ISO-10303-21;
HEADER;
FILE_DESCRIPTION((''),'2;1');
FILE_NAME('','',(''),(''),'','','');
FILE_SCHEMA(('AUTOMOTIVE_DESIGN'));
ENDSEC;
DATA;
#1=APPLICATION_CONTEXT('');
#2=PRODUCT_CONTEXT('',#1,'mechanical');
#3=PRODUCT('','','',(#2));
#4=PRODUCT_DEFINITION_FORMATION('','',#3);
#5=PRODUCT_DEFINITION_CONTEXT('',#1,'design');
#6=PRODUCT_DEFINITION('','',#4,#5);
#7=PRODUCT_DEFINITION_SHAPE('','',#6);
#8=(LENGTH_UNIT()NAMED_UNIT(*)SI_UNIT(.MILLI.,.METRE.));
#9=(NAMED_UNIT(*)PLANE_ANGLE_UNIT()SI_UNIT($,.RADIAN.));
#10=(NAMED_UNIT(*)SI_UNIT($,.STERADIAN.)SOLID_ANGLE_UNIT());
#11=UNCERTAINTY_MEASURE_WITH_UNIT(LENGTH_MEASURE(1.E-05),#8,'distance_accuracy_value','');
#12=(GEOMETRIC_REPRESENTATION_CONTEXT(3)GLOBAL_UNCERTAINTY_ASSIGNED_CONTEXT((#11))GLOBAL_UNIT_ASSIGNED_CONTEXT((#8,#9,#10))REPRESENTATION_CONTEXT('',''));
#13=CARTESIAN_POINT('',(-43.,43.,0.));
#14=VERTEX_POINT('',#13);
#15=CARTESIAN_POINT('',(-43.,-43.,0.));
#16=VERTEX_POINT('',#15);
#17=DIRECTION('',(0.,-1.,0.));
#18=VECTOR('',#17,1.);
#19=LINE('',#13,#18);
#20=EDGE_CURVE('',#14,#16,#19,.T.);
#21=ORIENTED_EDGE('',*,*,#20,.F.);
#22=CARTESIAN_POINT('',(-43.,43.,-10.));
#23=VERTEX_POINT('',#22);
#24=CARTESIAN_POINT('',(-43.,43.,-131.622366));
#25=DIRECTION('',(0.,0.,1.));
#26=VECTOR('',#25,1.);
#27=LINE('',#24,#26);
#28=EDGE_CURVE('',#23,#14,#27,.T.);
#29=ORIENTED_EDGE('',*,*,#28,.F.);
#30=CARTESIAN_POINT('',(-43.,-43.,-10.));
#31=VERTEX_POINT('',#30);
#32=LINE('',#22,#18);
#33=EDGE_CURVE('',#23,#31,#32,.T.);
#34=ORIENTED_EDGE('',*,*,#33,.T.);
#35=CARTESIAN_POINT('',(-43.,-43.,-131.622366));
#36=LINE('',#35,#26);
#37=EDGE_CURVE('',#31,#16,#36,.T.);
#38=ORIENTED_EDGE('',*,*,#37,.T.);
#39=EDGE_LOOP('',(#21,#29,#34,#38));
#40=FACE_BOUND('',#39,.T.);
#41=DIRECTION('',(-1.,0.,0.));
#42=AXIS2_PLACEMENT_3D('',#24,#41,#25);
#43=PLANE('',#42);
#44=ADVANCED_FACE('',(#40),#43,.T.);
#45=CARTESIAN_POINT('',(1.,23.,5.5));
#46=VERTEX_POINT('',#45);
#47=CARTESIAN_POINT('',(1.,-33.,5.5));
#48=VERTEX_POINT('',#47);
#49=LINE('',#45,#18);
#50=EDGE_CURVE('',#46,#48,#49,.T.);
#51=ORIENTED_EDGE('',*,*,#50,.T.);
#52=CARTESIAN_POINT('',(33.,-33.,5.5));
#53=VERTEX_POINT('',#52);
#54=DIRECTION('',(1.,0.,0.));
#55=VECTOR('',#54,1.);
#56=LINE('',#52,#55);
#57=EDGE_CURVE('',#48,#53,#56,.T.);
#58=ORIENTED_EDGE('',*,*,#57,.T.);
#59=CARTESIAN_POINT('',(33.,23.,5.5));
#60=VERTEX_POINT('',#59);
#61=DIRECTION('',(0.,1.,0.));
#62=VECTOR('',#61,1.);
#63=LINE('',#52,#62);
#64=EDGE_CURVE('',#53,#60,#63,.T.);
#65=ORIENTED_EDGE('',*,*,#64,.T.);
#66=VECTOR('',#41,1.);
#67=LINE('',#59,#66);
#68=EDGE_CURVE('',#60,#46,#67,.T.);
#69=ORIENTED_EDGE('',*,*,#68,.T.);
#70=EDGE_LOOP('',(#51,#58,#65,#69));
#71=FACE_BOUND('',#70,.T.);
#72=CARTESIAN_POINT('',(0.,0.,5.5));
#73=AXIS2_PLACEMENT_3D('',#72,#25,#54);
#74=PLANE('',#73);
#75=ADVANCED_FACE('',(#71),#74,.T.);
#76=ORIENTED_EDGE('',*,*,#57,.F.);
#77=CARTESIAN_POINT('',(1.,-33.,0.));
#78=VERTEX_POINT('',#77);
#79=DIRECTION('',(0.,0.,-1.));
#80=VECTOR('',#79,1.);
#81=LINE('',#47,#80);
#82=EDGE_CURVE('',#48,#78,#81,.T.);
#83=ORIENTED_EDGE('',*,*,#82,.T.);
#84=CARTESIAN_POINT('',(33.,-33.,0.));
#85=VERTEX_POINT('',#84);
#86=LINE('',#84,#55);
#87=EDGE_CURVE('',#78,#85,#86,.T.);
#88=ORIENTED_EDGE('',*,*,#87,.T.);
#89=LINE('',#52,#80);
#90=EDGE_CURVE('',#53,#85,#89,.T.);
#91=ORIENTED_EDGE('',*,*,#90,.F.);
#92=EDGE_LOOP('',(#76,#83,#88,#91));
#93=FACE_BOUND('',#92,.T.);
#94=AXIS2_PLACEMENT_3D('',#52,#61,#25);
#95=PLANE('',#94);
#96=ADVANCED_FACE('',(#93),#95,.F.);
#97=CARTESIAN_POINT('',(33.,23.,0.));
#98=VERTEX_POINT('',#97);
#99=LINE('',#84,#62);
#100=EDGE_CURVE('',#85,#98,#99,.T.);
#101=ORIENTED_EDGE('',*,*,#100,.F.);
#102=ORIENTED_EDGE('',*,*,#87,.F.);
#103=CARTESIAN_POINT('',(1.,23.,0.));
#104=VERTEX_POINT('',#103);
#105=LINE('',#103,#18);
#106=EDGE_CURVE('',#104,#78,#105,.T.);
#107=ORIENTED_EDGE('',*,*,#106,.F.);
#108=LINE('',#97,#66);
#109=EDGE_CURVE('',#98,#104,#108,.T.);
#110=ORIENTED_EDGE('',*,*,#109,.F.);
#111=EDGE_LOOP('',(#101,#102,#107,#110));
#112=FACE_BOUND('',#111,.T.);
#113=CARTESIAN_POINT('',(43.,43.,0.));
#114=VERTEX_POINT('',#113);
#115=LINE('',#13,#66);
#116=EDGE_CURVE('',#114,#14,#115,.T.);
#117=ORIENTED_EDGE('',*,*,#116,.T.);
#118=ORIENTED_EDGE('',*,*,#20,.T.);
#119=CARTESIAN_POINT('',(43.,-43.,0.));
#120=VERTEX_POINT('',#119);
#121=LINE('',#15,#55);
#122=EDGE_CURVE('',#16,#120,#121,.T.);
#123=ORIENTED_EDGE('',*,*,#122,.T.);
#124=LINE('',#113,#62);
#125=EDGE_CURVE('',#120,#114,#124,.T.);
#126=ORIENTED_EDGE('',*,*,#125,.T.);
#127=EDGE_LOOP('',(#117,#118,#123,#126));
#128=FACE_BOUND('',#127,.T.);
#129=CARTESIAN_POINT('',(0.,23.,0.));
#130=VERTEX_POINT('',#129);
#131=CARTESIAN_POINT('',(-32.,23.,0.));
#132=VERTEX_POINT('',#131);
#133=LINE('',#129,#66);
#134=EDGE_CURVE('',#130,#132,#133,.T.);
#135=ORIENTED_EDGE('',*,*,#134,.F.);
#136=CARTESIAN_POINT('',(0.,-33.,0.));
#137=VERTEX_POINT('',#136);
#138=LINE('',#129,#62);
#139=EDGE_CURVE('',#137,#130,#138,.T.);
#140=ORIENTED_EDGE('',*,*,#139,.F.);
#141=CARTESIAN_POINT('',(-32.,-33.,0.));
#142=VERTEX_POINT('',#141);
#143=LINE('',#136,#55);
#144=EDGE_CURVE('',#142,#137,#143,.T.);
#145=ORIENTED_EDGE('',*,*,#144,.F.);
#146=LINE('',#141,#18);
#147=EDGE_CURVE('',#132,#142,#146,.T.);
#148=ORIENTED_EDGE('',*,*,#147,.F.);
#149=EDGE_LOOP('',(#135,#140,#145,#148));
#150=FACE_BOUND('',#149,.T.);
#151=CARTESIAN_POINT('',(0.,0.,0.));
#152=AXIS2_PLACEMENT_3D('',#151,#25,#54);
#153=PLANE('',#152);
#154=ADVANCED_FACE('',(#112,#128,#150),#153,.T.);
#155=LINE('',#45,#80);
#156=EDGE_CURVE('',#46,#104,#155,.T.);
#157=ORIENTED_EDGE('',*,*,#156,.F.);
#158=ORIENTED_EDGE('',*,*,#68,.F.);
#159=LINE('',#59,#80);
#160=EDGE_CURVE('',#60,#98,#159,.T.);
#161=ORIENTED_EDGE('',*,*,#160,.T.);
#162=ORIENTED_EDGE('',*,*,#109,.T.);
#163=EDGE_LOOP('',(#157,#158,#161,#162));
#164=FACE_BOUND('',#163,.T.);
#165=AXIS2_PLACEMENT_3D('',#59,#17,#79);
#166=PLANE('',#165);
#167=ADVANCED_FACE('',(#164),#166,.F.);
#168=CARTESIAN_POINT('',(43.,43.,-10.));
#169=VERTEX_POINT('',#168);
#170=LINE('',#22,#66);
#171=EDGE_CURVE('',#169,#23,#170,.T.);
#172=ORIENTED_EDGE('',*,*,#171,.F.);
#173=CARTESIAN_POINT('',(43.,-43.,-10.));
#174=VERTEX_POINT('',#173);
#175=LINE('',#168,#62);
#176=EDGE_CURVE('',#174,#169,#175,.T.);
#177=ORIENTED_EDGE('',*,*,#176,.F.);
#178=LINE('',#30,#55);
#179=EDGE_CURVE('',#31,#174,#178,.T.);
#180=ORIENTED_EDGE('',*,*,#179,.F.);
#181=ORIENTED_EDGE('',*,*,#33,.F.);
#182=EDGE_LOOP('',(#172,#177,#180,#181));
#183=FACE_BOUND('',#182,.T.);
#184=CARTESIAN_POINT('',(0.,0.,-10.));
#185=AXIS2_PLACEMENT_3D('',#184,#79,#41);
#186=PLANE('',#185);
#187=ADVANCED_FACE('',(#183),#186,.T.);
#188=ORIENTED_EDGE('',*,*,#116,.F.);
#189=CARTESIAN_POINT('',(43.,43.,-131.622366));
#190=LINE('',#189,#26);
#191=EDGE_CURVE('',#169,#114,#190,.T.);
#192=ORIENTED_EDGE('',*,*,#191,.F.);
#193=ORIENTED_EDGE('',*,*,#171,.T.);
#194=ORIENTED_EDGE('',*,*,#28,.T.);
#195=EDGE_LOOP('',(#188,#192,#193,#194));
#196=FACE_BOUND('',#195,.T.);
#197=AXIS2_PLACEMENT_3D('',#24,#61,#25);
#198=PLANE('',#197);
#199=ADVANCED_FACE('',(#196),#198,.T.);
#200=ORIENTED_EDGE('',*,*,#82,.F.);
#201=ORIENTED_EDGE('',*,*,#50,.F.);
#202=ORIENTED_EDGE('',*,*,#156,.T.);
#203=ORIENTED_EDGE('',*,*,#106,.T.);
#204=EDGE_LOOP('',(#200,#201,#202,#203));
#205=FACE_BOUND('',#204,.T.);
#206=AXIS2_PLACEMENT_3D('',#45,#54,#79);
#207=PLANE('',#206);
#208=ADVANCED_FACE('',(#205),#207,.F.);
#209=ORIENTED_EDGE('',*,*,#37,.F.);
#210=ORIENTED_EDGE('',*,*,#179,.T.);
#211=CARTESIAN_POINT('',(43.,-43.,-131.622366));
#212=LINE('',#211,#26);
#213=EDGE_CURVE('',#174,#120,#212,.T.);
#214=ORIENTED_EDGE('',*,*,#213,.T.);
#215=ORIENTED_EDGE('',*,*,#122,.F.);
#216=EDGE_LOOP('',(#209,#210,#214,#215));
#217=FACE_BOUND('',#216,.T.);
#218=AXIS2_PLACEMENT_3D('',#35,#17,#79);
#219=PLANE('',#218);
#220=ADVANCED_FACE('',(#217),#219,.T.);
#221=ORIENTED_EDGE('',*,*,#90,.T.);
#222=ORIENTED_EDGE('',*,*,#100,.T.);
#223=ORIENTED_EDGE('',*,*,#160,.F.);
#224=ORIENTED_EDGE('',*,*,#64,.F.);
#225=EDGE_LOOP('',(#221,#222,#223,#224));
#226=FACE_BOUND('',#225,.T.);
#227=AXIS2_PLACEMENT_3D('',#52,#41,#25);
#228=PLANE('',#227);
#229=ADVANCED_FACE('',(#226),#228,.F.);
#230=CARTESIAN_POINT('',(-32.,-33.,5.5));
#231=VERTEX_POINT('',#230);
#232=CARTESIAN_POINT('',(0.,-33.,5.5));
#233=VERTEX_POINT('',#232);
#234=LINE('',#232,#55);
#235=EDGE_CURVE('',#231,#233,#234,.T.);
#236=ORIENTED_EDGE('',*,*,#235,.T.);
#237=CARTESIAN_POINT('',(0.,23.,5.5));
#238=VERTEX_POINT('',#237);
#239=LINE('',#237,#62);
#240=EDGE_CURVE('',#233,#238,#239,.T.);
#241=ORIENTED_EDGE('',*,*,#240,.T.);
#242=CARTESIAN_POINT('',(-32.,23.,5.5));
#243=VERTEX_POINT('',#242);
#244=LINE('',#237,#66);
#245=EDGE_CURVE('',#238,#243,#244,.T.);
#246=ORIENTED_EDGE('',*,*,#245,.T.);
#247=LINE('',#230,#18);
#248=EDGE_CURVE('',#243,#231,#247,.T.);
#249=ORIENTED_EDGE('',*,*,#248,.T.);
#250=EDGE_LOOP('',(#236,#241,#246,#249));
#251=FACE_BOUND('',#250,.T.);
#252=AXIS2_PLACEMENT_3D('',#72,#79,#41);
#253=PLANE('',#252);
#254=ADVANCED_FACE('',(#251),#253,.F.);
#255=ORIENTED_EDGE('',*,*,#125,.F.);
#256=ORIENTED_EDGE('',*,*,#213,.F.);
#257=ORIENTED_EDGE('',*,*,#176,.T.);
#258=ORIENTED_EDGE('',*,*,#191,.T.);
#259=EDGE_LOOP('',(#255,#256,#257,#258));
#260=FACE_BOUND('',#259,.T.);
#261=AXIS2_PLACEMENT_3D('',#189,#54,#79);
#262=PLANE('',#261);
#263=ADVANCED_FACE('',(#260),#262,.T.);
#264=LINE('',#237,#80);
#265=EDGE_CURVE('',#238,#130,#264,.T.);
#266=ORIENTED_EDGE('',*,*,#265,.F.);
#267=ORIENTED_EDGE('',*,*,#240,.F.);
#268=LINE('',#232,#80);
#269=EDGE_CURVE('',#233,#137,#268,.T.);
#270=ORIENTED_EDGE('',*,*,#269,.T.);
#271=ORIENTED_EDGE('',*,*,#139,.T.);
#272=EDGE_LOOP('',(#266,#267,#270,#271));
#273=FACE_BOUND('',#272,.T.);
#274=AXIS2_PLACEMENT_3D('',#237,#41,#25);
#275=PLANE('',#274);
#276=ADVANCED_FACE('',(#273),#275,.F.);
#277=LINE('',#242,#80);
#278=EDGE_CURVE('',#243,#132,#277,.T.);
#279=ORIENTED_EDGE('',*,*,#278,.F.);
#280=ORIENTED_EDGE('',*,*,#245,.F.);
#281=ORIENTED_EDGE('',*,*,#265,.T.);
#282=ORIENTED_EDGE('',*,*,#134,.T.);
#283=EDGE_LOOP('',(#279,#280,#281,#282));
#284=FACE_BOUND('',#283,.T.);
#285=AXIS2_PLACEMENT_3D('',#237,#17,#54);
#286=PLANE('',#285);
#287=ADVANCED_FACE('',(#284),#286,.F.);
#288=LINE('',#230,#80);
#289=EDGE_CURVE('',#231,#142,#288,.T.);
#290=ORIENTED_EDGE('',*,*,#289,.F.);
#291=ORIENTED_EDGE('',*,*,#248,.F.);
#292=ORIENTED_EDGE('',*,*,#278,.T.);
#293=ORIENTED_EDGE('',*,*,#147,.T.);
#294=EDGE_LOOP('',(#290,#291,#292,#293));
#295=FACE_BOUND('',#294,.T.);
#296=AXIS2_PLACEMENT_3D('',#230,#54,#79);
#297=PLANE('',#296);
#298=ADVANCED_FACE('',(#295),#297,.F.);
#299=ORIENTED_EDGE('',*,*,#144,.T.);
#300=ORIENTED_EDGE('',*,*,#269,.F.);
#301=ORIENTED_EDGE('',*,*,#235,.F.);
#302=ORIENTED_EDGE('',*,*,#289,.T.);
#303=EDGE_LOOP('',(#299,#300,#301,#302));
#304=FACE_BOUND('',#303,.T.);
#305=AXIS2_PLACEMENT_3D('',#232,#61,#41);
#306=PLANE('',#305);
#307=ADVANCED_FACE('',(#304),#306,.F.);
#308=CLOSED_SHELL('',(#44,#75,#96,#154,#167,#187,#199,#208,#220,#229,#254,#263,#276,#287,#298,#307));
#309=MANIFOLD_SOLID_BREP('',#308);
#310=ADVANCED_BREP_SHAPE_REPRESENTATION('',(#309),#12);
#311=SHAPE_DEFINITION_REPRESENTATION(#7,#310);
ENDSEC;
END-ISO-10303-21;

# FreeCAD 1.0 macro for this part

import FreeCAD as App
import Part
import Sketcher
from FreeCAD import Vector
Q = App.Units.Quantity

doc = App.newDocument("Part")
params = doc.addObject("Spreadsheet::Sheet", "Params")
for row, (alias, value) in enumerate([
    ("sketch1_width", "86 mm"),
    ("pad1_length", "10 mm"),
    ("sketch2_width", "32 mm"),
    ("sketch2_height", "56 mm"),
    ("pad2_length", "5.5 mm"),
], start=1):
    params.set(f"A{row}", alias)
    params.set(f"B{row}", "=" + value)
    params.setAlias(f"B{row}", alias)

body = doc.addObject("PartDesign::Body", "Body")

# Sketch on XY plane
sketch1 = body.newObject("Sketcher::SketchObject", "Sketch")
sketch1.AttachmentSupport = (doc.getObject("XY_Plane"), [""])
sketch1.MapMode = "FlatFace"
sketch1.addGeometry([
    Part.LineSegment(Vector(-43, 43, 0), Vector(-43, -43, 0)),
    Part.LineSegment(Vector(-43, -43, 0), Vector(43, -43, 0)),
    Part.LineSegment(Vector(43, -43, 0), Vector(43, 43, 0)),
    Part.LineSegment(Vector(43, 43, 0), Vector(-43, 43, 0)),
], False)
sketch1.addConstraint([
    Sketcher.Constraint("Coincident", 0, 2, 1, 1),
    Sketcher.Constraint("Coincident", 1, 2, 2, 1),
    Sketcher.Constraint("Coincident", 2, 2, 3, 1),
    Sketcher.Constraint("Coincident", 3, 2, 0, 1),
    Sketcher.Constraint("Vertical", 0),
    Sketcher.Constraint("Horizontal", 1),
    Sketcher.Constraint("Vertical", 2),
    Sketcher.Constraint("Horizontal", 3),
    Sketcher.Constraint("Symmetric", 0, 2, 2, 2, -1, 1),
    Sketcher.Constraint("Equal", 3, 0),
    Sketcher.Constraint("DistanceX", 1, 1, 1, 2, Q("86 mm")),
])
sketch1.setExpression("Constraints[10]", "Params.sketch1_width")
pad1 = body.newObject("PartDesign::Pad", "Pad")
pad1.Profile = sketch1
pad1.setExpression("Length", "Params.pad1_length")
pad1.Reversed = True

# Sketch on XY plane
sketch2 = body.newObject("Sketcher::SketchObject", "Sketch001")
sketch2.AttachmentSupport = (doc.getObject("XY_Plane"), [""])
sketch2.MapMode = "FlatFace"
sketch2.addGeometry([
    Part.LineSegment(Vector(1, 23, 0), Vector(1, -33, 0)),  # 0
    Part.LineSegment(Vector(1, -33, 0), Vector(33, -33, 0)),  # 1
    Part.LineSegment(Vector(33, -33, 0), Vector(33, 23, 0)),  # 2
    Part.LineSegment(Vector(33, 23, 0), Vector(1, 23, 0)),  # 3
    Part.LineSegment(Vector(-32, 23, 0), Vector(-32, -33, 0)),  # 4
    Part.LineSegment(Vector(-32, -33, 0), Vector(0, -33, 0)),  # 5
    Part.LineSegment(Vector(0, -33, 0), Vector(0, 23, 0)),  # 6
    Part.LineSegment(Vector(0, 23, 0), Vector(-32, 23, 0)),  # 7
], False)
sketch2.addConstraint([
    Sketcher.Constraint("Coincident", 0, 2, 1, 1),
    Sketcher.Constraint("Coincident", 1, 2, 2, 1),
    Sketcher.Constraint("Coincident", 2, 2, 3, 1),
    Sketcher.Constraint("Coincident", 3, 2, 0, 1),
    Sketcher.Constraint("Coincident", 4, 2, 5, 1),
    Sketcher.Constraint("Coincident", 5, 2, 6, 1),
    Sketcher.Constraint("Coincident", 6, 2, 7, 1),
    Sketcher.Constraint("Coincident", 7, 2, 4, 1),
    Sketcher.Constraint("Vertical", 0),
    Sketcher.Constraint("Horizontal", 1),
    Sketcher.Constraint("Vertical", 2),
    Sketcher.Constraint("Horizontal", 3),
    Sketcher.Constraint("Vertical", 4),
    Sketcher.Constraint("Horizontal", 5),
    Sketcher.Constraint("Vertical", 6),
    Sketcher.Constraint("Horizontal", 7),
    Sketcher.Constraint("PointOnObject", 5, 2, -2),
    Sketcher.Constraint("Horizontal", 1, 2, 4, 2),
    Sketcher.Constraint("Horizontal", 3, 2, 6, 2),
    Sketcher.Constraint("Equal", 3, 5),
    Sketcher.Constraint("DistanceX", 1, 1, 1, 2, Q("32 mm")),
    Sketcher.Constraint("DistanceY", 0, 2, 0, 1, Q("56 mm")),
    Sketcher.Constraint("DistanceX", -1, 1, 0, 2, Q("1 mm")),
    Sketcher.Constraint("DistanceY", 0, 2, -1, 1, Q("33 mm")),
])
sketch2.setExpression("Constraints[20]", "Params.sketch2_width")
sketch2.setExpression("Constraints[21]", "Params.sketch2_height")
pad2 = body.newObject("PartDesign::Pad", "Pad001")
pad2.Profile = sketch2
pad2.setExpression("Length", "Params.pad2_length")

doc.recompute()
